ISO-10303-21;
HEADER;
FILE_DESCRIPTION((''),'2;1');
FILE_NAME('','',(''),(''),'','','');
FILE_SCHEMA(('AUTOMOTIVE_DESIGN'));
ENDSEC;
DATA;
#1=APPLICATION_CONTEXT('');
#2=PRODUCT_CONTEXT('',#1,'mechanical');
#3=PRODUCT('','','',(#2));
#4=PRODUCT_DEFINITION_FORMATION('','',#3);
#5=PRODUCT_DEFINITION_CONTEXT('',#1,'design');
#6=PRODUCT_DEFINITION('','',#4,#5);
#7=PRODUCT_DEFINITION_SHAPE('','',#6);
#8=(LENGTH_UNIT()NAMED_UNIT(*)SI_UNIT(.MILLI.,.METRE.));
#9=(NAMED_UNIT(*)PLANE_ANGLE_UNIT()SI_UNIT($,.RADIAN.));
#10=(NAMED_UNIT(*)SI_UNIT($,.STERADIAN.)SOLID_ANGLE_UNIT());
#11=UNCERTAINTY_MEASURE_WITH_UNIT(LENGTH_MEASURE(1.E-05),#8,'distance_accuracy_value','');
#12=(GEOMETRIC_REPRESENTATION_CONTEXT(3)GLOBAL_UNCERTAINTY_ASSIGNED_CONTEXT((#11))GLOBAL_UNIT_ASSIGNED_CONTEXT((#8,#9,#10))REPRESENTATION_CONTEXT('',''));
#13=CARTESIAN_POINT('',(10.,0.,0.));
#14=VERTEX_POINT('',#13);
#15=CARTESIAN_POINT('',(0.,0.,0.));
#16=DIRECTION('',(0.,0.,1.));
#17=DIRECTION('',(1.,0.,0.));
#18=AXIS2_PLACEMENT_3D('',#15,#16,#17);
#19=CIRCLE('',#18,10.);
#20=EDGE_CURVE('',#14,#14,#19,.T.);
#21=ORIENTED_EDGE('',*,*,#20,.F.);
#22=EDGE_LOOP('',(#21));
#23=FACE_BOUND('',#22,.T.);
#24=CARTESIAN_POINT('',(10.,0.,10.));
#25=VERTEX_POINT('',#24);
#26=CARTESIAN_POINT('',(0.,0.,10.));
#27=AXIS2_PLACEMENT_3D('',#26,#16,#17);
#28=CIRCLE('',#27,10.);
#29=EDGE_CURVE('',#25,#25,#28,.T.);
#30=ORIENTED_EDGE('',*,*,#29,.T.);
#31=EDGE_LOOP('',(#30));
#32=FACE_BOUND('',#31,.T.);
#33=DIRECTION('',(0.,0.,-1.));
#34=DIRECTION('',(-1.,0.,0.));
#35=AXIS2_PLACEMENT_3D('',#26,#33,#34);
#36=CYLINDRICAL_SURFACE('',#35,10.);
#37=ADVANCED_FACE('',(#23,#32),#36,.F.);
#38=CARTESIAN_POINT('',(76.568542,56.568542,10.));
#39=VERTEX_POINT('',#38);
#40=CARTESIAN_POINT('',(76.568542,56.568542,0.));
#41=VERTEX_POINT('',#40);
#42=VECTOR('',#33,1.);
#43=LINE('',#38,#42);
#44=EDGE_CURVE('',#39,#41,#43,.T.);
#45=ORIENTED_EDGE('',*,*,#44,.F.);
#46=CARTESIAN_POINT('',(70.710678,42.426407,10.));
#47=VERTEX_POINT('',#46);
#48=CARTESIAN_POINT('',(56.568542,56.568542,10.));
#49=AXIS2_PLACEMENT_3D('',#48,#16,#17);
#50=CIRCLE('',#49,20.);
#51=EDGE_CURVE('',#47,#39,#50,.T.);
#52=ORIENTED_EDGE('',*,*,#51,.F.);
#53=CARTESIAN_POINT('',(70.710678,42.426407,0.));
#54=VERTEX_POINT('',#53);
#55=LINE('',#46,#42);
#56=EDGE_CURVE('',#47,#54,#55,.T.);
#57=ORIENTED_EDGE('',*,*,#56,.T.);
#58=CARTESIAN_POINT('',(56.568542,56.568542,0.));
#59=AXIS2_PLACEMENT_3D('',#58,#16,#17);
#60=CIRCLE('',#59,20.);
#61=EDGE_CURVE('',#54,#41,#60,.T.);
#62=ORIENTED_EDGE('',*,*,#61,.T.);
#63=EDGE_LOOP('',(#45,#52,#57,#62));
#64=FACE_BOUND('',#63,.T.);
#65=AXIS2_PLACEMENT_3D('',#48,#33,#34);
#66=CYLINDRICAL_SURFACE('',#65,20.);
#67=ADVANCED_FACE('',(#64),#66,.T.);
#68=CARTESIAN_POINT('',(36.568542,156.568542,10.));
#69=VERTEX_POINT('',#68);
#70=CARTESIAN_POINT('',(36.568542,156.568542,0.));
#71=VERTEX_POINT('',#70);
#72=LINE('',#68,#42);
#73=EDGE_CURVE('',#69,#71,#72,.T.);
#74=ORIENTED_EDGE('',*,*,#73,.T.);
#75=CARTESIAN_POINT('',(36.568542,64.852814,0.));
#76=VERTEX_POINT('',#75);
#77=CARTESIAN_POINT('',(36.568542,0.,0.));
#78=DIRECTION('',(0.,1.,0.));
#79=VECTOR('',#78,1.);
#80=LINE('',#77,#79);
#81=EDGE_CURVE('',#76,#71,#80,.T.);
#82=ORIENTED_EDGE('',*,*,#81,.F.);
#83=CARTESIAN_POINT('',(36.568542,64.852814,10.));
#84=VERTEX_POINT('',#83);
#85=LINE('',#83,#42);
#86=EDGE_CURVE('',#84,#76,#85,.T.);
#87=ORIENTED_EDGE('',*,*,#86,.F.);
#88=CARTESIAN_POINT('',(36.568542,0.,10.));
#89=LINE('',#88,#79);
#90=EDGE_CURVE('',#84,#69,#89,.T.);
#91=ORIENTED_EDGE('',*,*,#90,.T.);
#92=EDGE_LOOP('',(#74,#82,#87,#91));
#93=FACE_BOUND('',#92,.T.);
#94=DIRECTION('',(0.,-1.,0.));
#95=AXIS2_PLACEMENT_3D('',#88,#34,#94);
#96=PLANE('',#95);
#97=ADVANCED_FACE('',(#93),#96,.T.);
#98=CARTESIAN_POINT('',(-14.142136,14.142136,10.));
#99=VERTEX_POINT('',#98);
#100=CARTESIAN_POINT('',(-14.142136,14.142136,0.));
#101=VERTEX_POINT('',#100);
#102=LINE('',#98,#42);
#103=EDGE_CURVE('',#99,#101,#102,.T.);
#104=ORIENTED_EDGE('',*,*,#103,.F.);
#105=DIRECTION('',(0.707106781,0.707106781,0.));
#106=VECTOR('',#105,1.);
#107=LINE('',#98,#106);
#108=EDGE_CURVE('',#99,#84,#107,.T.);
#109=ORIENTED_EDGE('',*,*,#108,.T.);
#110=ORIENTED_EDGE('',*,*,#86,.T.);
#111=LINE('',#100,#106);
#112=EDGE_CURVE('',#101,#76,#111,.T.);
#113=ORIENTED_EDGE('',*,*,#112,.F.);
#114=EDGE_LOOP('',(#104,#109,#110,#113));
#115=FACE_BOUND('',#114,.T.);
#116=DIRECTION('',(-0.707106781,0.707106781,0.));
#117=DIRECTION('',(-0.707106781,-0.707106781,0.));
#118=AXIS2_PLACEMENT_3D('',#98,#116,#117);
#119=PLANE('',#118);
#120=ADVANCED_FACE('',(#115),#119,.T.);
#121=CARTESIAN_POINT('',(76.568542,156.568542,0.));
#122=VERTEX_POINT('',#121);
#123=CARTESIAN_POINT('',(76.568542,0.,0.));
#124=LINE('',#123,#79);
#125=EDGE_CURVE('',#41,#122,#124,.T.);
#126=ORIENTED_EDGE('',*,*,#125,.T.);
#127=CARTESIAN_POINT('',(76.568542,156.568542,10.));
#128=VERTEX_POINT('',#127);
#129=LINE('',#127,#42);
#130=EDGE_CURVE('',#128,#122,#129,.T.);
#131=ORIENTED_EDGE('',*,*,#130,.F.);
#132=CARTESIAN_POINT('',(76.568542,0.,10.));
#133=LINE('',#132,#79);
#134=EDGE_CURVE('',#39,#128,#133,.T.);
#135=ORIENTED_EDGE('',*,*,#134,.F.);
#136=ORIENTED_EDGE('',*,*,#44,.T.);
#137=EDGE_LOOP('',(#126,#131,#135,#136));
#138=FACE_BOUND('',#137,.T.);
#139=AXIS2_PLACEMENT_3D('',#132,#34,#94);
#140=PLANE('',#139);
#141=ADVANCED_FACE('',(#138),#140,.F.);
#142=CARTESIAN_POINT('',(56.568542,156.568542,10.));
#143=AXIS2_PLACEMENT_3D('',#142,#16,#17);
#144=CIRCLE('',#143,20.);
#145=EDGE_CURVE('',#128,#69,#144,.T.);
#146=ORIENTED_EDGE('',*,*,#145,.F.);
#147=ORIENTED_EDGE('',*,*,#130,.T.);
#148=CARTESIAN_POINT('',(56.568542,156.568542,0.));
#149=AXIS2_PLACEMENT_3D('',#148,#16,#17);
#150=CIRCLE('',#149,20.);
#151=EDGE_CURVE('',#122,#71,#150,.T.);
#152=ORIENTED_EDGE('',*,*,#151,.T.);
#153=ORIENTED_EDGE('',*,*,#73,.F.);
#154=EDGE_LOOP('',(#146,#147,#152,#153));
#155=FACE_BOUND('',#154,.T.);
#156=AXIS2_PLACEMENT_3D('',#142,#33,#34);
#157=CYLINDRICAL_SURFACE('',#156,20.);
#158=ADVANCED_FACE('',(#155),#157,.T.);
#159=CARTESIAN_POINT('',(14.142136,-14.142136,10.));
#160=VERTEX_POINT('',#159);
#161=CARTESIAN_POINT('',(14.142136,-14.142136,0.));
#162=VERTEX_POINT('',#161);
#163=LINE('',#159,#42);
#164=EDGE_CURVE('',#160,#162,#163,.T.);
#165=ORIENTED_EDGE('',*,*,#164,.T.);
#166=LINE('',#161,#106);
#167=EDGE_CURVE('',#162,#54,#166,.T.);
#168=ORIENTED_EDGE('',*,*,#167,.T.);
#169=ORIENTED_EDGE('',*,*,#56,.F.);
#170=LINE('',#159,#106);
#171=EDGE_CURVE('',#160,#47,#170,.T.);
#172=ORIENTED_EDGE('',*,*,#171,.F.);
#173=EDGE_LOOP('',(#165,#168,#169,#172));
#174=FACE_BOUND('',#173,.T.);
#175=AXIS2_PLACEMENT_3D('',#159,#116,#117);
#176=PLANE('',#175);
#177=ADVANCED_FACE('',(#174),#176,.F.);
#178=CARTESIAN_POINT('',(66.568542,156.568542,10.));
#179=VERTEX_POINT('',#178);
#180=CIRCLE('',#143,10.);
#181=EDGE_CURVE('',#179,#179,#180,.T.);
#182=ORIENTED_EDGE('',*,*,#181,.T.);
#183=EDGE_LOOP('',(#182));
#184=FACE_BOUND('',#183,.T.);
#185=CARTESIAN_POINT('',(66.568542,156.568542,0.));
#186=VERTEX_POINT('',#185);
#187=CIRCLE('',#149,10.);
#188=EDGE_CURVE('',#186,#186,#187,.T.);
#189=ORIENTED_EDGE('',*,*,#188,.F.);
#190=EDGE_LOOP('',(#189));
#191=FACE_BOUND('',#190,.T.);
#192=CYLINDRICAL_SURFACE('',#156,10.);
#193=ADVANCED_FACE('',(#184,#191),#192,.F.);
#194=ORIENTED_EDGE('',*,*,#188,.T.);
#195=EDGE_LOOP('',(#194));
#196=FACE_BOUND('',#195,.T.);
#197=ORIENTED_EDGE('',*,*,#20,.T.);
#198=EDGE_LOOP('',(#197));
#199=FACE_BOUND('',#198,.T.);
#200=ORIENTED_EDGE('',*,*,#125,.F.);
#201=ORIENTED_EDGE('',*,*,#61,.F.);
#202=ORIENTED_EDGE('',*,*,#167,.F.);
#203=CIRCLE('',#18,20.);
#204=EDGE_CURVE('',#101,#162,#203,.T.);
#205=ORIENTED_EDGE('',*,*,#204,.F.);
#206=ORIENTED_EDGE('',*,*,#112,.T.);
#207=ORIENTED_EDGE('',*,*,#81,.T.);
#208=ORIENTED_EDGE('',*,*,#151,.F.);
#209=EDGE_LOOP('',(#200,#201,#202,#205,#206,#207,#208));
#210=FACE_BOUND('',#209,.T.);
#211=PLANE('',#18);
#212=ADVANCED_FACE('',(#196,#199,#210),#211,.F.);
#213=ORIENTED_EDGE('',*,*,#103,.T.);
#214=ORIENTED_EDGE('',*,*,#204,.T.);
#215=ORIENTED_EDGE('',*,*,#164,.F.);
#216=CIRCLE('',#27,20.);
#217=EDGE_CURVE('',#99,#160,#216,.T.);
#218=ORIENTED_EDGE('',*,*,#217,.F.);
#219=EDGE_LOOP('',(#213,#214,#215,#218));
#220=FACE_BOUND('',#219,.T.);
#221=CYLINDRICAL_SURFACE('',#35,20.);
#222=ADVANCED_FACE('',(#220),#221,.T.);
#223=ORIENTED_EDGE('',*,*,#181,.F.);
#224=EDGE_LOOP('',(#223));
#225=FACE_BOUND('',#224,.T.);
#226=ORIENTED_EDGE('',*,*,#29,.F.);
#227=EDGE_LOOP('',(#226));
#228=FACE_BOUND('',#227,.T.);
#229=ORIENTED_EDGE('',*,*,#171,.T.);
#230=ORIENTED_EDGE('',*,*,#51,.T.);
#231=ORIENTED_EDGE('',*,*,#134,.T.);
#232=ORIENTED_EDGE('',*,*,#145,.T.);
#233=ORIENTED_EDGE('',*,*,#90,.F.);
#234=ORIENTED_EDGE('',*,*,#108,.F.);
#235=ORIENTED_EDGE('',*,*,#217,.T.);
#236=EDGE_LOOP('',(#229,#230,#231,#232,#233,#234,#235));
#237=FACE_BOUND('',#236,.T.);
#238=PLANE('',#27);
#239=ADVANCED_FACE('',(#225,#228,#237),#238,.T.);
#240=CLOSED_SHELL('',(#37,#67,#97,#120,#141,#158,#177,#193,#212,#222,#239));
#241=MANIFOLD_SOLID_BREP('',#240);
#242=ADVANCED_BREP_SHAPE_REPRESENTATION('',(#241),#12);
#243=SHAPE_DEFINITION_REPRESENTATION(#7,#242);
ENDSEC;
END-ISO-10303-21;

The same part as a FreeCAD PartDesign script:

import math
import FreeCAD as App
import Part
import Sketcher
Q = App.Units.Quantity

doc = App.newDocument("Part")
body = doc.addObject("PartDesign::Body", "Body")

# Sketch on XY plane
sketch1 = body.newObject("Sketcher::SketchObject", "Sketch")
sketch1.AttachmentSupport = (doc.getObject("XY_Plane"), [""])
sketch1.MapMode = "FlatFace"
sketch1.addGeometry([
    Part.LineSegment(App.Vector(37, 157, 0), App.Vector(37, 65, 0)),  # 0
    Part.LineSegment(App.Vector(37, 65, 0), App.Vector(-14, 14, 0)),  # 1
    Part.ArcOfCircle(Part.Circle(App.Vector(0, 0, 0), App.Vector(0, 0, 1), 20), math.radians(135), math.radians(315)),  # 2
    Part.LineSegment(App.Vector(14, -14, 0), App.Vector(71, 42, 0)),  # 3
    Part.ArcOfCircle(Part.Circle(App.Vector(57, 57, 0), App.Vector(0, 0, 1), 20), math.radians(-45), math.radians(0)),  # 4
    Part.LineSegment(App.Vector(77, 57, 0), App.Vector(77, 157, 0)),  # 5
    Part.ArcOfCircle(Part.Circle(App.Vector(57, 157, 0), App.Vector(0, 0, 1), 20), math.radians(0), math.radians(180)),  # 6
    Part.Circle(App.Vector(57, 157, 0), App.Vector(0, 0, 1), 10),  # 7
    Part.Circle(App.Vector(0, 0, 0), App.Vector(0, 0, 1), 10),  # 8
], False)
sketch1.addConstraint([
    Sketcher.Constraint("Coincident", 0, 2, 1, 1),
    Sketcher.Constraint("Tangent", 1, 2, 2, 1),
    Sketcher.Constraint("Tangent", 2, 2, 3, 1),
    Sketcher.Constraint("Tangent", 3, 2, 4, 1),
    Sketcher.Constraint("Tangent", 4, 2, 5, 1),
    Sketcher.Constraint("Tangent", 5, 2, 6, 1),
    Sketcher.Constraint("Tangent", 6, 2, 0, 1),
    Sketcher.Constraint("Vertical", 0),
    Sketcher.Constraint("Vertical", 5),
    Sketcher.Constraint("Coincident", 2, 3, -1, 1),
    Sketcher.Constraint("Coincident", 8, 3, -1, 1),
    Sketcher.Constraint("Coincident", 7, 3, 6, 3),
    Sketcher.Constraint("Equal", 2, 4),
    Sketcher.Constraint("Equal", 4, 6),
    Sketcher.Constraint("Equal", 7, 8),
    Sketcher.Constraint("Parallel", 1, 3),
    Sketcher.Constraint("Diameter", 7, 20.0),
    Sketcher.Constraint("Radius", 2, 20.0),
    Sketcher.Constraint("DistanceY", 5, 1, 5, 2, 100.0),
    Sketcher.Constraint("Angle", 1, Q("-135 deg")),
    Sketcher.Constraint("Distance", 3, 80.0),
])
pad1 = body.newObject("PartDesign::Pad", "Pad")
pad1.Profile = sketch1
pad1.Length = 10

doc.recompute()
